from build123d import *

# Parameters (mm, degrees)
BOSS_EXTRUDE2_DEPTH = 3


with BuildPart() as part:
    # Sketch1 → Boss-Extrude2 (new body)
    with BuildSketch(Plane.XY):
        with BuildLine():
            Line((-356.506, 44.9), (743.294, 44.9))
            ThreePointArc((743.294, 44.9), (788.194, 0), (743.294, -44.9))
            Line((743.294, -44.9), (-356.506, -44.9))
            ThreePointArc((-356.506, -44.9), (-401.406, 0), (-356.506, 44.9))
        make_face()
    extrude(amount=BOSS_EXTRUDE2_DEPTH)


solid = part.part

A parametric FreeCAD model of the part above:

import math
import FreeCAD as App
import Part
import Sketcher

doc = App.newDocument("Part")
body = doc.addObject("PartDesign::Body", "Body")

# Sketch on XY plane
sketch1 = body.newObject("Sketcher::SketchObject", "Sketch")
sketch1.AttachmentSupport = (doc.getObject("XY_Plane"), [""])
sketch1.MapMode = "FlatFace"
sketch1.addGeometry(Part.LineSegment(App.Vector(743, 45, 0), App.Vector(-357, 45, 0)), False)
sketch1.addGeometry(Part.ArcOfCircle(Part.Circle(App.Vector(-357, 0, 0), App.Vector(0, 0, 1), 45), math.radians(90), math.radians(270)), False)
sketch1.addGeometry(Part.LineSegment(App.Vector(-357, -45, 0), App.Vector(743, -45, 0)), False)
sketch1.addGeometry(Part.ArcOfCircle(Part.Circle(App.Vector(743, 0, 0), App.Vector(0, 0, 1), 45), math.radians(-90), math.radians(90)), False)
sketch1.addConstraint(Sketcher.Constraint("Tangent", 0, 2, 1, 1))
sketch1.addConstraint(Sketcher.Constraint("Tangent", 1, 2, 2, 1))
sketch1.addConstraint(Sketcher.Constraint("Tangent", 2, 2, 3, 1))
sketch1.addConstraint(Sketcher.Constraint("Tangent", 3, 2, 0, 1))
sketch1.addConstraint(Sketcher.Constraint("Horizontal", 0))
sketch1.addConstraint(Sketcher.Constraint("Horizontal", 2))
sketch1.addConstraint(Sketcher.Constraint("PointOnObject", 1, 3, -1))
sketch1.addConstraint(Sketcher.Constraint("Radius", 1, 44.9))
sketch1.addConstraint(Sketcher.Constraint("DistanceX", 0, 2, 0, 1, 1099.8))
sketch1.addConstraint(Sketcher.Constraint("DistanceX", 1, 3, -1, 1, 356.506))
pad1 = body.newObject("PartDesign::Pad", "Pad")
pad1.Profile = sketch1
pad1.Length = 3

doc.recompute()
